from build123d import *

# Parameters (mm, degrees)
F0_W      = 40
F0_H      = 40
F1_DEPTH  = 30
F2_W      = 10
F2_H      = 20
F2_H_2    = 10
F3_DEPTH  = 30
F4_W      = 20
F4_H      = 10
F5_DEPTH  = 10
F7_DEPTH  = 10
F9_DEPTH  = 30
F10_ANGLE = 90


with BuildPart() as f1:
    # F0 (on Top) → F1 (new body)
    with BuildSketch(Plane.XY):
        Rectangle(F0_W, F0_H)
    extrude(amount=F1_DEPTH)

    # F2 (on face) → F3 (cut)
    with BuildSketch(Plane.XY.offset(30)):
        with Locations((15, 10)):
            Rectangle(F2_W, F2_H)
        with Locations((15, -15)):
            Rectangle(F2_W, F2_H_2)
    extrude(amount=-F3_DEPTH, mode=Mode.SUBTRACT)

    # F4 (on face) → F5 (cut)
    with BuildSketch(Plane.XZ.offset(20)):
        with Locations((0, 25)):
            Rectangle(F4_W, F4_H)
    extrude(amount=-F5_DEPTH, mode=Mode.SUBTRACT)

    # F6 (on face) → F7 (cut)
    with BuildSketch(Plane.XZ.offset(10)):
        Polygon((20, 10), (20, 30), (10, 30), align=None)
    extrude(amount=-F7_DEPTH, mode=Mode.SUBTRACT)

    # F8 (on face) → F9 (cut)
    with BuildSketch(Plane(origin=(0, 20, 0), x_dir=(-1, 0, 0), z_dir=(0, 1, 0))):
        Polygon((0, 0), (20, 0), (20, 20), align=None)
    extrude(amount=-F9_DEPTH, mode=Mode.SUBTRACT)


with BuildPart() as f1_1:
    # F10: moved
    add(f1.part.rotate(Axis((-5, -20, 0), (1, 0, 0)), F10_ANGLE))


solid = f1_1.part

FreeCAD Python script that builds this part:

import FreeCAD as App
import Part
import Sketcher

V = App.Vector
Q = App.Units.Quantity


def add_polygon(sketch, points):
    """Adds a closed chain of lines whose ends are joined by coincident constraints."""
    first, n = sketch.GeometryCount, len(points)
    for a, b in zip(points, points[1:] + points[:1]):
        sketch.addGeometry(Part.LineSegment(App.Vector(*a, 0), App.Vector(*b, 0)), False)
    for i in range(n):
        sketch.addConstraint(Sketcher.Constraint("Coincident", first + i, 2, first + (i + 1) % n, 1))

doc = App.newDocument("Part")
params = doc.addObject("Spreadsheet::Sheet", "Params")
for row, (alias, value) in enumerate([
    ("sketch1_width", "40 mm"),
    ("pad1_length", "30 mm"),
    ("sketch2_width", "10 mm"),
    ("sketch2_height", "20 mm"),
    ("pocket1_length", "30 mm"),
    ("sketch3_width", "20 mm"),
    ("sketch3_height", "10 mm"),
    ("pocket2_length", "10 mm"),
    ("sketch4_width", "10 mm"),
    ("sketch4_height", "20 mm"),
    ("pocket3_length", "10 mm"),
    ("sketch5_width", "20 mm"),
    ("pocket4_length", "30 mm"),
], start=1):
    params.set(f"A{row}", alias)
    params.set(f"B{row}", "=" + value)
    params.setAlias(f"B{row}", alias)

body = doc.addObject("PartDesign::Body", "Body")

# Sketch on XY plane
sketch1 = doc.addObject("Sketcher::SketchObject", "Sketch")
body.addObject(sketch1)
sketch1.AttachmentSupport = (doc.XY_Plane, [""])
sketch1.MapMode = "FlatFace"
add_polygon(sketch1, [(-20, 20), (-20, -20), (20, -20), (20, 20)])  # lines 0-3
sketch1.addConstraint(Sketcher.Constraint("Vertical", 0))
sketch1.addConstraint(Sketcher.Constraint("Horizontal", 1))
sketch1.addConstraint(Sketcher.Constraint("Vertical", 2))
sketch1.addConstraint(Sketcher.Constraint("Horizontal", 3))
sketch1.addConstraint(Sketcher.Constraint("Symmetric", 0, 2, 2, 2, -1, 1))
sketch1.addConstraint(Sketcher.Constraint("Equal", 3, 0))
sketch1.addConstraint(Sketcher.Constraint("DistanceX", 1, 1, 1, 2, Q("40 mm")))
sketch1.setExpression("Constraints[10]", "Params.sketch1_width")
pad1 = doc.addObject("PartDesign::Pad", "Pad")
body.addObject(pad1)
pad1.Profile = sketch1
pad1.setExpression("Length", "Params.pad1_length")

# Sketch on XY plane
sketch2 = doc.addObject("Sketcher::SketchObject", "Sketch001")
body.addObject(sketch2)
sketch2.AttachmentSupport = (doc.XY_Plane, [""])
sketch2.MapMode = "FlatFace"
sketch2.AttachmentOffset = App.Placement(V(0, 0, 30), App.Rotation())
add_polygon(sketch2, [(10, 20), (10, 0), (20, 0), (20, 20)])  # lines 0-3
add_polygon(sketch2, [(10, -10), (10, -20), (20, -20), (20, -10)])  # lines 4-7
sketch2.addConstraint(Sketcher.Constraint("Vertical", 0))
sketch2.addConstraint(Sketcher.Constraint("Horizontal", 1))
sketch2.addConstraint(Sketcher.Constraint("Vertical", 2))
sketch2.addConstraint(Sketcher.Constraint("Horizontal", 3))
sketch2.addConstraint(Sketcher.Constraint("Vertical", 4))
sketch2.addConstraint(Sketcher.Constraint("Horizontal", 5))
sketch2.addConstraint(Sketcher.Constraint("Vertical", 6))
sketch2.addConstraint(Sketcher.Constraint("Horizontal", 7))
sketch2.addConstraint(Sketcher.Constraint("Symmetric", 3, 2, 4, 2, -1))
sketch2.addConstraint(Sketcher.Constraint("PointOnObject", 0, 2, -1))
sketch2.addConstraint(Sketcher.Constraint("Vertical", 2, 2, 5, 2))
sketch2.addConstraint(Sketcher.Constraint("Equal", 7, 4))
sketch2.addConstraint(Sketcher.Constraint("DistanceX", 1, 1, 1, 2, Q("10 mm")))
sketch2.addConstraint(Sketcher.Constraint("DistanceY", 0, 2, 0, 1, Q("20 mm")))
sketch2.addConstraint(Sketcher.Constraint("DistanceX", -1, 1, 0, 2, Q("10 mm")))
sketch2.setExpression("Constraints[20]", "Params.sketch2_width")
sketch2.setExpression("Constraints[21]", "Params.sketch2_height")
pocket1 = doc.addObject("PartDesign::Pocket", "Pocket")
body.addObject(pocket1)
pocket1.Profile = sketch2
pocket1.setExpression("Length", "Params.pocket1_length")

# Sketch on XZ plane
sketch3 = doc.addObject("Sketcher::SketchObject", "Sketch002")
body.addObject(sketch3)
sketch3.AttachmentSupport = (doc.XZ_Plane, [""])
sketch3.MapMode = "FlatFace"
sketch3.AttachmentOffset = App.Placement(V(0, 0, 20), App.Rotation())
add_polygon(sketch3, [(-10, 30), (-10, 20), (10, 20), (10, 30)])  # lines 0-3
sketch3.addConstraint(Sketcher.Constraint("Vertical", 0))
sketch3.addConstraint(Sketcher.Constraint("Horizontal", 1))
sketch3.addConstraint(Sketcher.Constraint("Vertical", 2))
sketch3.addConstraint(Sketcher.Constraint("Horizontal", 3))
sketch3.addConstraint(Sketcher.Constraint("DistanceX", 1, 1, 1, 2, Q("20 mm")))
sketch3.addConstraint(Sketcher.Constraint("DistanceY", 0, 2, 0, 1, Q("10 mm")))
sketch3.addConstraint(Sketcher.Constraint("DistanceX", 0, 2, -1, 1, Q("10 mm")))
sketch3.addConstraint(Sketcher.Constraint("DistanceY", -1, 1, 0, 2, Q("20 mm")))
sketch3.setExpression("Constraints[8]", "Params.sketch3_width")
sketch3.setExpression("Constraints[9]", "Params.sketch3_height")
pocket2 = doc.addObject("PartDesign::Pocket", "Pocket001")
body.addObject(pocket2)
pocket2.Profile = sketch3
pocket2.setExpression("Length", "Params.pocket2_length")

# Sketch on XZ plane
sketch4 = doc.addObject("Sketcher::SketchObject", "Sketch003")
body.addObject(sketch4)
sketch4.AttachmentSupport = (doc.XZ_Plane, [""])
sketch4.MapMode = "FlatFace"
sketch4.AttachmentOffset = App.Placement(V(0, 0, 10), App.Rotation())
add_polygon(sketch4, [(20, 10), (20, 30), (10, 30)])  # lines 0-2
sketch4.addConstraint(Sketcher.Constraint("Vertical", 0))
sketch4.addConstraint(Sketcher.Constraint("Horizontal", 1))
sketch4.addConstraint(Sketcher.Constraint("DistanceX", 1, 2, 1, 1, Q("10 mm")))
sketch4.addConstraint(Sketcher.Constraint("DistanceY", 0, 1, 0, 2, Q("20 mm")))
sketch4.addConstraint(Sketcher.Constraint("DistanceX", -1, 1, 0, 2, Q("20 mm")))
sketch4.addConstraint(Sketcher.Constraint("DistanceY", -1, 1, 0, 2, Q("30 mm")))
sketch4.setExpression("Constraints[5]", "Params.sketch4_width")
sketch4.setExpression("Constraints[6]", "Params.sketch4_height")
pocket3 = doc.addObject("PartDesign::Pocket", "Pocket002")
body.addObject(pocket3)
pocket3.Profile = sketch4
pocket3.setExpression("Length", "Params.pocket3_length")

# Sketch on XZ plane
sketch5 = doc.addObject("Sketcher::SketchObject", "Sketch004")
body.addObject(sketch5)
sketch5.AttachmentSupport = (doc.XZ_Plane, [""])
sketch5.MapMode = "FlatFace"
sketch5.AttachmentOffset = App.Placement(V(0, 0, -20), App.Rotation())
add_polygon(sketch5, [(0, 0), (-20, 0), (-20, 20)])  # lines 0-2
sketch5.addConstraint(Sketcher.Constraint("Horizontal", 0))
sketch5.addConstraint(Sketcher.Constraint("Vertical", 1))
sketch5.addConstraint(Sketcher.Constraint("Coincident", 2, 2, -1, 1))
sketch5.addConstraint(Sketcher.Constraint("Equal", 0, 1))
sketch5.addConstraint(Sketcher.Constraint("DistanceX", 0, 2, 0, 1, Q("20 mm")))
sketch5.setExpression("Constraints[7]", "Params.sketch5_width")
pocket4 = doc.addObject("PartDesign::Pocket", "Pocket003")
body.addObject(pocket4)
pocket4.Profile = sketch5
pocket4.setExpression("Length", "Params.pocket4_length")
pocket4.Reversed = True
body2 = doc.addObject("PartDesign::Body", "Body001")
doc.recompute()

body.Placement = App.Placement(V(0, -20, 20), App.Rotation(V(1, 0, 0), 90))
boolean = doc.addObject("PartDesign::Boolean", "Boolean")
body2.addObject(boolean)
boolean.Type = "Fuse"
boolean.addObjects([body])

doc.recompute()
